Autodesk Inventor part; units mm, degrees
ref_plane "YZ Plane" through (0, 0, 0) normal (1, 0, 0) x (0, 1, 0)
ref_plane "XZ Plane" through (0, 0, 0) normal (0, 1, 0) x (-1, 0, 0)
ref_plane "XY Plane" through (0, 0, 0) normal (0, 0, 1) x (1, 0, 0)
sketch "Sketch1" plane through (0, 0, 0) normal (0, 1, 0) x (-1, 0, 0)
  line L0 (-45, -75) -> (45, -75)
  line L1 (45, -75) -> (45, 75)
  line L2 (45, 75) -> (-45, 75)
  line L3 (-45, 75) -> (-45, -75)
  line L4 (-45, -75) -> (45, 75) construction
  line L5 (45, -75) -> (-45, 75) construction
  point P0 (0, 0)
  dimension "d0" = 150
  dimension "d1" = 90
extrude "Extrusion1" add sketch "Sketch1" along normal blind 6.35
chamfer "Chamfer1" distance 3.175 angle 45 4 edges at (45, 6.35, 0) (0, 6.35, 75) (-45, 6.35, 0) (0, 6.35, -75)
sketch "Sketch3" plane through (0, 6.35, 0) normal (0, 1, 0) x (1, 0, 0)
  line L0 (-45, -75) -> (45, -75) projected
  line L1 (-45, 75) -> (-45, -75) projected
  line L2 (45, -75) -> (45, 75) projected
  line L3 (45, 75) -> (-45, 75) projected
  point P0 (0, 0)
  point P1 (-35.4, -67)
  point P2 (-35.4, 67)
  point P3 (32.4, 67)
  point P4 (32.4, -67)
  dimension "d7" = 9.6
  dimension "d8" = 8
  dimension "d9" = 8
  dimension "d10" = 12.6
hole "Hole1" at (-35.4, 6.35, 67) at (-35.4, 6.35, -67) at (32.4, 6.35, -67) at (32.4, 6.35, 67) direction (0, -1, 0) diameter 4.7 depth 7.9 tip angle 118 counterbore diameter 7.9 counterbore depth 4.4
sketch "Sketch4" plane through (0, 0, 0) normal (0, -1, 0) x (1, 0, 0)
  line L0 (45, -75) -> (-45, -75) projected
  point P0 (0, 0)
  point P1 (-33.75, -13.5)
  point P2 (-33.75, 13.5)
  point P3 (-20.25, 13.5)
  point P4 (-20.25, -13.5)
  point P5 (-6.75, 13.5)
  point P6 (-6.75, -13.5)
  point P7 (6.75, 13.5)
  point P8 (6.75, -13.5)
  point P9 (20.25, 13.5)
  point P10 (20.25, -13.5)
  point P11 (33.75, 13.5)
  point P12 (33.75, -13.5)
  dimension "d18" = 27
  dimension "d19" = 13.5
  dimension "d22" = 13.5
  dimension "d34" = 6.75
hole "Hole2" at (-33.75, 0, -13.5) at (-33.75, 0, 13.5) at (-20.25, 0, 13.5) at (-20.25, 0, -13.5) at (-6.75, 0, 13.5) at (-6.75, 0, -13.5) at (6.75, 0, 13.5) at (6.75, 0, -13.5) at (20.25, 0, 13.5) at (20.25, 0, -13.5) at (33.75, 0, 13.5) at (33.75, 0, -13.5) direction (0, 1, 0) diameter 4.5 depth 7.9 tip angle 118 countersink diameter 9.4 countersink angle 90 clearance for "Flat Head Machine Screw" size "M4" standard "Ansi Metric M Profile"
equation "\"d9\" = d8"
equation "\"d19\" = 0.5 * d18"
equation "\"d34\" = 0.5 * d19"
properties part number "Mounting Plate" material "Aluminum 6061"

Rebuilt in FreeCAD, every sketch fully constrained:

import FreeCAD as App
import Part
import Sketcher
from FreeCAD import Vector


def edges_at(feature, points):
    """Names of the edges that pass closest to the given points."""
    edges = feature.Shape.Edges
    near = lambda p: min(range(len(edges)), key=lambda i: edges[i].distToShape(Part.Vertex(*p))[0])
    return sorted({f"Edge{near(p) + 1}" for p in points})


def add_polygon(sketch, points):
    """Adds a closed chain of lines whose ends are joined by coincident constraints."""
    first, n = sketch.GeometryCount, len(points)
    for a, b in zip(points, points[1:] + points[:1]):
        sketch.addGeometry(Part.LineSegment(App.Vector(*a, 0), App.Vector(*b, 0)), False)
    for i in range(n):
        sketch.addConstraint(Sketcher.Constraint("Coincident", first + i, 2, first + (i + 1) % n, 1))

doc = App.newDocument("Part")
params = doc.addObject("Spreadsheet::Sheet", "Params")
for row, (alias, value) in enumerate([
    ("sketch1_width", "90 mm"),
    ("sketch1_height", "150 mm"),
    ("pad1_length", "6.35 mm"),
    ("chamfer_size", "3.175 mm"),
    ("sketch2_diameter", "4.7 mm"),
    ("hole_diameter", "4.7 mm"),
    ("hole_depth", "7.9 mm"),
    ("hole_cbore_diameter", "7.9 mm"),
    ("hole_cbore_depth", "4.4 mm"),
    ("sketch3_diameter", "4.5 mm"),
    ("hole2_diameter", "4.5 mm"),
    ("hole2_depth", "7.9 mm"),
    ("hole2_csink_diameter", "9.4 mm"),
], start=1):
    params.set(f"A{row}", alias)
    params.set(f"B{row}", "=" + value)
    params.setAlias(f"B{row}", alias)

body = doc.addObject("PartDesign::Body", "Body")

sketch1 = body.newObject("Sketcher::SketchObject", "Sketch")
sketch1.AttachmentSupport = (doc.getObject("XZ_Plane"), [""])
sketch1.MapMode = "FlatFace"
add_polygon(sketch1, [(45, 75), (45, -75), (-45, -75), (-45, 75)])
sketch1.addConstraint([
    Sketcher.Constraint("Vertical", 0),
    Sketcher.Constraint("Horizontal", 1),
    Sketcher.Constraint("Vertical", 2),
    Sketcher.Constraint("Horizontal", 3),
    Sketcher.Constraint("Symmetric", 0, 2, 2, 2, -1, 1),
    Sketcher.Constraint("DistanceX", 1, 2, 1, 1, 90.0),
    Sketcher.Constraint("DistanceY", 0, 2, 0, 1, 150.0),
])
sketch1.setExpression("Constraints[9]", "Params.sketch1_width")
sketch1.setExpression("Constraints[10]", "Params.sketch1_height")
pad1 = body.newObject("PartDesign::Pad", "Pad")
pad1.Profile = sketch1
pad1.setExpression("Length", "Params.pad1_length")
pad1.Reversed = True
doc.recompute()

chamfer = body.newObject("PartDesign::Chamfer", "Chamfer")
chamfer.Base = (pad1, edges_at(pad1, [
    (45, 6.35, 0),
    (0, 6.35, 75),
    (-45, 6.35, 0),
    (0, 6.35, -75),
]))
chamfer.setExpression("Size", "Params.chamfer_size")

sketch2 = body.newObject("Sketcher::SketchObject", "Sketch001")
sketch2.AttachmentSupport = (doc.getObject("XZ_Plane"), [""])
sketch2.MapMode = "FlatFace"
sketch2.AttachmentOffset = App.Placement(Vector(0, 0, -6.35), App.Rotation())
sketch2.addGeometry([
    Part.Circle(Vector(-35.4, 67, 0), Vector(0, 0, 1), 2.4),
    Part.Circle(Vector(-35.4, -67, 0), Vector(0, 0, 1), 2.4),
    Part.Circle(Vector(32.4, -67, 0), Vector(0, 0, 1), 2.4),
    Part.Circle(Vector(32.4, 67, 0), Vector(0, 0, 1), 2.4),
], False)
sketch2.addConstraint([
    Sketcher.Constraint("Equal", 0, 1),
    Sketcher.Constraint("Equal", 1, 2),
    Sketcher.Constraint("Equal", 2, 3),
    Sketcher.Constraint("Symmetric", 0, 3, 1, 3, -1),
    Sketcher.Constraint("Symmetric", 2, 3, 3, 3, -1),
    Sketcher.Constraint("Horizontal", 1, 3, 2, 3),
    Sketcher.Constraint("Diameter", 0, 4.7),
    Sketcher.Constraint("DistanceY", -1, 1, 0, 3, 67.0),
    Sketcher.Constraint("DistanceX", 0, 3, -1, 1, 35.4),
    Sketcher.Constraint("DistanceX", -1, 1, 2, 3, 32.4),
])
sketch2.setExpression("Constraints[6]", "Params.sketch2_diameter")
doc.recompute()
hole = body.newObject("PartDesign::Hole", "Hole")
hole.Profile = sketch2
hole.ThreadType = "None"
hole.setExpression("Diameter", "Params.hole_diameter")
hole.DepthType = "Dimension"
hole.setExpression("Depth", "Params.hole_depth")
hole.DrillPoint = "Angled"
hole.DrillPointAngle = 118
hole.HoleCutType = "Counterbore"
hole.setExpression("HoleCutDiameter", "Params.hole_cbore_diameter")
hole.setExpression("HoleCutDepth", "Params.hole_cbore_depth")
hole.Reversed = True

sketch3 = body.newObject("Sketcher::SketchObject", "Sketch002")
sketch3.AttachmentSupport = (doc.getObject("XZ_Plane"), [""])
sketch3.MapMode = "FlatFace"
sketch3.addGeometry([
    Part.Circle(Vector(-33.8, -13.5, 0), Vector(0, 0, 1), 2.2),
    Part.Circle(Vector(-33.8, 13.5, 0), Vector(0, 0, 1), 2.2),
    Part.Circle(Vector(-20.2, 13.5, 0), Vector(0, 0, 1), 2.2),
    Part.Circle(Vector(-20.2, -13.5, 0), Vector(0, 0, 1), 2.2),
    Part.Circle(Vector(-6.8, 13.5, 0), Vector(0, 0, 1), 2.2),
    Part.Circle(Vector(-6.8, -13.5, 0), Vector(0, 0, 1), 2.2),
    Part.Circle(Vector(6.8, 13.5, 0), Vector(0, 0, 1), 2.2),
    Part.Circle(Vector(6.8, -13.5, 0), Vector(0, 0, 1), 2.2),
    Part.Circle(Vector(20.2, 13.5, 0), Vector(0, 0, 1), 2.2),
    Part.Circle(Vector(20.2, -13.5, 0), Vector(0, 0, 1), 2.2),
    Part.Circle(Vector(33.8, 13.5, 0), Vector(0, 0, 1), 2.2),
    Part.Circle(Vector(33.8, -13.5, 0), Vector(0, 0, 1), 2.2),
], False)
sketch3.addConstraint([
    Sketcher.Constraint("Equal", 0, 1),
    Sketcher.Constraint("Equal", 1, 2),
    Sketcher.Constraint("Equal", 2, 3),
    Sketcher.Constraint("Equal", 3, 4),
    Sketcher.Constraint("Equal", 4, 5),
    Sketcher.Constraint("Equal", 5, 6),
    Sketcher.Constraint("Equal", 6, 7),
    Sketcher.Constraint("Equal", 7, 8),
    Sketcher.Constraint("Equal", 8, 9),
    Sketcher.Constraint("Equal", 9, 10),
    Sketcher.Constraint("Equal", 10, 11),
    Sketcher.Constraint("Symmetric", 5, 3, 6, 3, -1, 1),
    Sketcher.Constraint("Symmetric", 4, 3, 7, 3, -1, 1),
    Sketcher.Constraint("Symmetric", 3, 3, 8, 3, -1, 1),
    Sketcher.Constraint("Symmetric", 2, 3, 9, 3, -1, 1),
    Sketcher.Constraint("Symmetric", 0, 3, 10, 3, -1, 1),
    Sketcher.Constraint("Symmetric", 1, 3, 11, 3, -1, 1),
    Sketcher.Constraint("Symmetric", 4, 3, 6, 3, -2),
    Sketcher.Constraint("Symmetric", 2, 3, 8, 3, -2),
    Sketcher.Constraint("Symmetric", 1, 3, 10, 3, -2),
    Sketcher.Constraint("Horizontal", 1, 3, 2, 3),
    Sketcher.Constraint("Horizontal", 2, 3, 4, 3),
    Sketcher.Constraint("Diameter", 0, 4.5),
    Sketcher.Constraint("DistanceY", 0, 3, 1, 3, 27.0),
    Sketcher.Constraint("DistanceX", 1, 3, 4, 3, 27.0),
    Sketcher.Constraint("DistanceX", 2, 3, 6, 3, 27.0),
    Sketcher.Constraint("DistanceX", 1, 3, 2, 3, 13.5),
])
sketch3.setExpression("Constraints[22]", "Params.sketch3_diameter")
doc.recompute()
hole2 = body.newObject("PartDesign::Hole", "Hole001")
hole2.Profile = sketch3
hole2.ThreadType = "None"
hole2.setExpression("Diameter", "Params.hole2_diameter")
hole2.DepthType = "Dimension"
hole2.setExpression("Depth", "Params.hole2_depth")
hole2.DrillPoint = "Angled"
hole2.DrillPointAngle = 118
hole2.HoleCutType = "Countersink"
hole2.setExpression("HoleCutDiameter", "Params.hole2_csink_diameter")
hole2.HoleCutCountersinkAngle = 90

doc.recompute()
